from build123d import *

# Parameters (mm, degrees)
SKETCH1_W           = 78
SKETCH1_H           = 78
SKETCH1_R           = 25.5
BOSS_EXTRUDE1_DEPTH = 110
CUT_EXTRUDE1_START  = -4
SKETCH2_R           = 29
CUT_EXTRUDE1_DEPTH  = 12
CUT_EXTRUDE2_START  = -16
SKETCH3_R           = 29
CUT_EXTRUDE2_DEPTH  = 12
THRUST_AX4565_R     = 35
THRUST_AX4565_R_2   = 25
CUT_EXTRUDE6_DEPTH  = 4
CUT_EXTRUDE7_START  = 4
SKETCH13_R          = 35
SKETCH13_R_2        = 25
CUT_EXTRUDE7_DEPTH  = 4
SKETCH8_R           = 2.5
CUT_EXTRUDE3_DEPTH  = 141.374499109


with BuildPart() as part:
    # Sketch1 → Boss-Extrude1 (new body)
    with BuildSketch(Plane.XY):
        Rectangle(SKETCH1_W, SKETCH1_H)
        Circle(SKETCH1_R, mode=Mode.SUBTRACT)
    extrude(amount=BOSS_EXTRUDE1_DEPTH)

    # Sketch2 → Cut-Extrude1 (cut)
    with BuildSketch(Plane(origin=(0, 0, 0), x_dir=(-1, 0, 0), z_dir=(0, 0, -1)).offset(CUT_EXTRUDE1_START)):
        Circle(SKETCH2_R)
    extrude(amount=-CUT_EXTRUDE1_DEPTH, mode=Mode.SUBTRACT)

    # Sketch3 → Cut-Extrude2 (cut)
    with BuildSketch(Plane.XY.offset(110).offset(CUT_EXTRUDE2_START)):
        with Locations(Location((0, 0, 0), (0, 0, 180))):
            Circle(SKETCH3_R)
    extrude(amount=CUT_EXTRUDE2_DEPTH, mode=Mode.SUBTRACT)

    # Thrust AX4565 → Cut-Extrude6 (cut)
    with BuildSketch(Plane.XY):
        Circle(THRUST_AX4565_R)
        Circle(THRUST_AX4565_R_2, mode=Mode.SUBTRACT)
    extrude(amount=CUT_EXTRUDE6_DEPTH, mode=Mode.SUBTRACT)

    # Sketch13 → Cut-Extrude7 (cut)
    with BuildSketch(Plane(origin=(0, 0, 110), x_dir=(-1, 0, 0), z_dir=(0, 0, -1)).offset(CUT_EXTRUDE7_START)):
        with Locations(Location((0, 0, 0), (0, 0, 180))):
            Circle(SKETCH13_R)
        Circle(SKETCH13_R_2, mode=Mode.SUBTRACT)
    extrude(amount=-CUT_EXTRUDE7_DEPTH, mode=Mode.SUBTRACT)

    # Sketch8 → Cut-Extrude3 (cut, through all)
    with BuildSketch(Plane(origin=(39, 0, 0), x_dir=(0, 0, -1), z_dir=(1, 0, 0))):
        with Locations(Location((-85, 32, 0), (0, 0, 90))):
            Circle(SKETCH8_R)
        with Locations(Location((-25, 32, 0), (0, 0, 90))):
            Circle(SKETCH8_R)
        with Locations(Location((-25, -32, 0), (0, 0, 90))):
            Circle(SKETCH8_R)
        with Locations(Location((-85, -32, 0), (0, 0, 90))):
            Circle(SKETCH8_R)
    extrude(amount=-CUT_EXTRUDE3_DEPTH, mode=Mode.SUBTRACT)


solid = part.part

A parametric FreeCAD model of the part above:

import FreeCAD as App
import Part
import Sketcher

V = App.Vector


def add_polygon(sketch, points):
    """Adds a closed chain of lines whose ends are joined by coincident constraints."""
    first, n = sketch.GeometryCount, len(points)
    for a, b in zip(points, points[1:] + points[:1]):
        sketch.addGeometry(Part.LineSegment(App.Vector(*a, 0), App.Vector(*b, 0)), False)
    for i in range(n):
        sketch.addConstraint(Sketcher.Constraint("Coincident", first + i, 2, first + (i + 1) % n, 1))

doc = App.newDocument("Part")
body = doc.addObject("PartDesign::Body", "Body")

# Sketch on XY plane
sketch1 = doc.addObject("Sketcher::SketchObject", "Sketch")
body.addObject(sketch1)
sketch1.AttachmentSupport = (doc.XY_Plane, [""])
sketch1.MapMode = "FlatFace"
add_polygon(sketch1, [(-39, 39), (-39, -39), (39, -39), (39, 39)])  # lines 0-3
sketch1.addGeometry(Part.Circle(V(0, 0, 0), V(0, 0, 1), 26), False)  # 4
sketch1.addConstraint([
    Sketcher.Constraint("Vertical", 0),
    Sketcher.Constraint("Horizontal", 1),
    Sketcher.Constraint("Vertical", 2),
    Sketcher.Constraint("Horizontal", 3),
    Sketcher.Constraint("Coincident", 4, 3, -1, 1),
    Sketcher.Constraint("Symmetric", 0, 2, 2, 2, -1, 1),
    Sketcher.Constraint("Equal", 3, 0),
    Sketcher.Constraint("Diameter", 4, 51.0),
    Sketcher.Constraint("DistanceX", 1, 1, 1, 2, 78.0),
])
pad1 = doc.addObject("PartDesign::Pad", "Pad")
body.addObject(pad1)
pad1.Profile = sketch1
pad1.Length = 110

# Sketch on XY plane
sketch2 = doc.addObject("Sketcher::SketchObject", "Sketch001")
body.addObject(sketch2)
sketch2.AttachmentSupport = (doc.XY_Plane, [""])
sketch2.MapMode = "FlatFace"
sketch2.AttachmentOffset = App.Placement(V(0, 0, 4), App.Rotation())
sketch2.addGeometry(Part.Circle(V(0, 0, 0), V(0, 0, 1), 29), False)
sketch2.addConstraint([
    Sketcher.Constraint("Coincident", 0, 3, -1, 1),
    Sketcher.Constraint("Diameter", 0, 58.0),
])
pocket1 = doc.addObject("PartDesign::Pocket", "Pocket")
body.addObject(pocket1)
pocket1.Profile = sketch2
pocket1.Length = 12
pocket1.Reversed = True

# Sketch on XY plane
sketch3 = doc.addObject("Sketcher::SketchObject", "Sketch002")
body.addObject(sketch3)
sketch3.AttachmentSupport = (doc.XY_Plane, [""])
sketch3.MapMode = "FlatFace"
sketch3.AttachmentOffset = App.Placement(V(0, 0, 94), App.Rotation())
sketch3.addGeometry(Part.Circle(V(0, 0, 0), V(0, 0, 1), 29), False)
sketch3.addConstraint([
    Sketcher.Constraint("Coincident", 0, 3, -1, 1),
    Sketcher.Constraint("Diameter", 0, 58.0),
])
pocket2 = doc.addObject("PartDesign::Pocket", "Pocket001")
body.addObject(pocket2)
pocket2.Profile = sketch3
pocket2.Length = 12
pocket2.Reversed = True

# Sketch on XY plane
sketch4 = doc.addObject("Sketcher::SketchObject", "Sketch003")
body.addObject(sketch4)
sketch4.AttachmentSupport = (doc.XY_Plane, [""])
sketch4.MapMode = "FlatFace"
sketch4.addGeometry([
    Part.Circle(V(0, 0, 0), V(0, 0, 1), 35),
    Part.Circle(V(0, 0, 0), V(0, 0, 1), 25),
], False)
sketch4.addConstraint([
    Sketcher.Constraint("Coincident", 0, 3, -1, 1),
    Sketcher.Constraint("Coincident", 1, 3, -1, 1),
    Sketcher.Constraint("Diameter", 0, 70.0),
    Sketcher.Constraint("Diameter", 1, 50.0),
])
pocket3 = doc.addObject("PartDesign::Pocket", "Pocket002")
body.addObject(pocket3)
pocket3.Profile = sketch4
pocket3.Length = 4
pocket3.Reversed = True

# Sketch on XY plane
sketch5 = doc.addObject("Sketcher::SketchObject", "Sketch004")
body.addObject(sketch5)
sketch5.AttachmentSupport = (doc.XY_Plane, [""])
sketch5.MapMode = "FlatFace"
sketch5.AttachmentOffset = App.Placement(V(0, 0, 106), App.Rotation())
sketch5.addGeometry([
    Part.Circle(V(0, 0, 0), V(0, 0, 1), 35),
    Part.Circle(V(0, 0, 0), V(0, 0, 1), 25),
], False)
sketch5.addConstraint([
    Sketcher.Constraint("Coincident", 0, 3, -1, 1),
    Sketcher.Constraint("Coincident", 1, 3, -1, 1),
    Sketcher.Constraint("Diameter", 0, 70.0),
    Sketcher.Constraint("Diameter", 1, 50.0),
])
pocket4 = doc.addObject("PartDesign::Pocket", "Pocket003")
body.addObject(pocket4)
pocket4.Profile = sketch5
pocket4.Length = 4
pocket4.Reversed = True

# Sketch on YZ plane
sketch6 = doc.addObject("Sketcher::SketchObject", "Sketch005")
body.addObject(sketch6)
sketch6.AttachmentSupport = (doc.YZ_Plane, [""])
sketch6.MapMode = "FlatFace"
sketch6.AttachmentOffset = App.Placement(V(0, 0, 39), App.Rotation())
sketch6.addGeometry([
    Part.Circle(V(32, 85, 0), V(0, 0, 1), 2.5),
    Part.Circle(V(32, 25, 0), V(0, 0, 1), 2.5),
    Part.Circle(V(-32, 25, 0), V(0, 0, 1), 2.5),
    Part.Circle(V(-32, 85, 0), V(0, 0, 1), 2.5),
], False)
sketch6.addConstraint([
    Sketcher.Constraint("Equal", 0, 1),
    Sketcher.Constraint("Equal", 1, 2),
    Sketcher.Constraint("Equal", 2, 3),
    Sketcher.Constraint("Symmetric", 1, 3, 2, 3, -2),
    Sketcher.Constraint("Symmetric", 0, 3, 3, 3, -2),
    Sketcher.Constraint("Vertical", 0, 3, 1, 3),
    Sketcher.Constraint("Diameter", 0, 5.0),
    Sketcher.Constraint("DistanceX", -1, 1, 0, 3, 32.0),
    Sketcher.Constraint("DistanceY", -1, 1, 0, 3, 85.0),
    Sketcher.Constraint("DistanceY", -1, 1, 1, 3, 25.0),
])
pocket5 = doc.addObject("PartDesign::Pocket", "Pocket004")
body.addObject(pocket5)
pocket5.Profile = sketch6
pocket5.Type = "ThroughAll"

doc.recompute()
